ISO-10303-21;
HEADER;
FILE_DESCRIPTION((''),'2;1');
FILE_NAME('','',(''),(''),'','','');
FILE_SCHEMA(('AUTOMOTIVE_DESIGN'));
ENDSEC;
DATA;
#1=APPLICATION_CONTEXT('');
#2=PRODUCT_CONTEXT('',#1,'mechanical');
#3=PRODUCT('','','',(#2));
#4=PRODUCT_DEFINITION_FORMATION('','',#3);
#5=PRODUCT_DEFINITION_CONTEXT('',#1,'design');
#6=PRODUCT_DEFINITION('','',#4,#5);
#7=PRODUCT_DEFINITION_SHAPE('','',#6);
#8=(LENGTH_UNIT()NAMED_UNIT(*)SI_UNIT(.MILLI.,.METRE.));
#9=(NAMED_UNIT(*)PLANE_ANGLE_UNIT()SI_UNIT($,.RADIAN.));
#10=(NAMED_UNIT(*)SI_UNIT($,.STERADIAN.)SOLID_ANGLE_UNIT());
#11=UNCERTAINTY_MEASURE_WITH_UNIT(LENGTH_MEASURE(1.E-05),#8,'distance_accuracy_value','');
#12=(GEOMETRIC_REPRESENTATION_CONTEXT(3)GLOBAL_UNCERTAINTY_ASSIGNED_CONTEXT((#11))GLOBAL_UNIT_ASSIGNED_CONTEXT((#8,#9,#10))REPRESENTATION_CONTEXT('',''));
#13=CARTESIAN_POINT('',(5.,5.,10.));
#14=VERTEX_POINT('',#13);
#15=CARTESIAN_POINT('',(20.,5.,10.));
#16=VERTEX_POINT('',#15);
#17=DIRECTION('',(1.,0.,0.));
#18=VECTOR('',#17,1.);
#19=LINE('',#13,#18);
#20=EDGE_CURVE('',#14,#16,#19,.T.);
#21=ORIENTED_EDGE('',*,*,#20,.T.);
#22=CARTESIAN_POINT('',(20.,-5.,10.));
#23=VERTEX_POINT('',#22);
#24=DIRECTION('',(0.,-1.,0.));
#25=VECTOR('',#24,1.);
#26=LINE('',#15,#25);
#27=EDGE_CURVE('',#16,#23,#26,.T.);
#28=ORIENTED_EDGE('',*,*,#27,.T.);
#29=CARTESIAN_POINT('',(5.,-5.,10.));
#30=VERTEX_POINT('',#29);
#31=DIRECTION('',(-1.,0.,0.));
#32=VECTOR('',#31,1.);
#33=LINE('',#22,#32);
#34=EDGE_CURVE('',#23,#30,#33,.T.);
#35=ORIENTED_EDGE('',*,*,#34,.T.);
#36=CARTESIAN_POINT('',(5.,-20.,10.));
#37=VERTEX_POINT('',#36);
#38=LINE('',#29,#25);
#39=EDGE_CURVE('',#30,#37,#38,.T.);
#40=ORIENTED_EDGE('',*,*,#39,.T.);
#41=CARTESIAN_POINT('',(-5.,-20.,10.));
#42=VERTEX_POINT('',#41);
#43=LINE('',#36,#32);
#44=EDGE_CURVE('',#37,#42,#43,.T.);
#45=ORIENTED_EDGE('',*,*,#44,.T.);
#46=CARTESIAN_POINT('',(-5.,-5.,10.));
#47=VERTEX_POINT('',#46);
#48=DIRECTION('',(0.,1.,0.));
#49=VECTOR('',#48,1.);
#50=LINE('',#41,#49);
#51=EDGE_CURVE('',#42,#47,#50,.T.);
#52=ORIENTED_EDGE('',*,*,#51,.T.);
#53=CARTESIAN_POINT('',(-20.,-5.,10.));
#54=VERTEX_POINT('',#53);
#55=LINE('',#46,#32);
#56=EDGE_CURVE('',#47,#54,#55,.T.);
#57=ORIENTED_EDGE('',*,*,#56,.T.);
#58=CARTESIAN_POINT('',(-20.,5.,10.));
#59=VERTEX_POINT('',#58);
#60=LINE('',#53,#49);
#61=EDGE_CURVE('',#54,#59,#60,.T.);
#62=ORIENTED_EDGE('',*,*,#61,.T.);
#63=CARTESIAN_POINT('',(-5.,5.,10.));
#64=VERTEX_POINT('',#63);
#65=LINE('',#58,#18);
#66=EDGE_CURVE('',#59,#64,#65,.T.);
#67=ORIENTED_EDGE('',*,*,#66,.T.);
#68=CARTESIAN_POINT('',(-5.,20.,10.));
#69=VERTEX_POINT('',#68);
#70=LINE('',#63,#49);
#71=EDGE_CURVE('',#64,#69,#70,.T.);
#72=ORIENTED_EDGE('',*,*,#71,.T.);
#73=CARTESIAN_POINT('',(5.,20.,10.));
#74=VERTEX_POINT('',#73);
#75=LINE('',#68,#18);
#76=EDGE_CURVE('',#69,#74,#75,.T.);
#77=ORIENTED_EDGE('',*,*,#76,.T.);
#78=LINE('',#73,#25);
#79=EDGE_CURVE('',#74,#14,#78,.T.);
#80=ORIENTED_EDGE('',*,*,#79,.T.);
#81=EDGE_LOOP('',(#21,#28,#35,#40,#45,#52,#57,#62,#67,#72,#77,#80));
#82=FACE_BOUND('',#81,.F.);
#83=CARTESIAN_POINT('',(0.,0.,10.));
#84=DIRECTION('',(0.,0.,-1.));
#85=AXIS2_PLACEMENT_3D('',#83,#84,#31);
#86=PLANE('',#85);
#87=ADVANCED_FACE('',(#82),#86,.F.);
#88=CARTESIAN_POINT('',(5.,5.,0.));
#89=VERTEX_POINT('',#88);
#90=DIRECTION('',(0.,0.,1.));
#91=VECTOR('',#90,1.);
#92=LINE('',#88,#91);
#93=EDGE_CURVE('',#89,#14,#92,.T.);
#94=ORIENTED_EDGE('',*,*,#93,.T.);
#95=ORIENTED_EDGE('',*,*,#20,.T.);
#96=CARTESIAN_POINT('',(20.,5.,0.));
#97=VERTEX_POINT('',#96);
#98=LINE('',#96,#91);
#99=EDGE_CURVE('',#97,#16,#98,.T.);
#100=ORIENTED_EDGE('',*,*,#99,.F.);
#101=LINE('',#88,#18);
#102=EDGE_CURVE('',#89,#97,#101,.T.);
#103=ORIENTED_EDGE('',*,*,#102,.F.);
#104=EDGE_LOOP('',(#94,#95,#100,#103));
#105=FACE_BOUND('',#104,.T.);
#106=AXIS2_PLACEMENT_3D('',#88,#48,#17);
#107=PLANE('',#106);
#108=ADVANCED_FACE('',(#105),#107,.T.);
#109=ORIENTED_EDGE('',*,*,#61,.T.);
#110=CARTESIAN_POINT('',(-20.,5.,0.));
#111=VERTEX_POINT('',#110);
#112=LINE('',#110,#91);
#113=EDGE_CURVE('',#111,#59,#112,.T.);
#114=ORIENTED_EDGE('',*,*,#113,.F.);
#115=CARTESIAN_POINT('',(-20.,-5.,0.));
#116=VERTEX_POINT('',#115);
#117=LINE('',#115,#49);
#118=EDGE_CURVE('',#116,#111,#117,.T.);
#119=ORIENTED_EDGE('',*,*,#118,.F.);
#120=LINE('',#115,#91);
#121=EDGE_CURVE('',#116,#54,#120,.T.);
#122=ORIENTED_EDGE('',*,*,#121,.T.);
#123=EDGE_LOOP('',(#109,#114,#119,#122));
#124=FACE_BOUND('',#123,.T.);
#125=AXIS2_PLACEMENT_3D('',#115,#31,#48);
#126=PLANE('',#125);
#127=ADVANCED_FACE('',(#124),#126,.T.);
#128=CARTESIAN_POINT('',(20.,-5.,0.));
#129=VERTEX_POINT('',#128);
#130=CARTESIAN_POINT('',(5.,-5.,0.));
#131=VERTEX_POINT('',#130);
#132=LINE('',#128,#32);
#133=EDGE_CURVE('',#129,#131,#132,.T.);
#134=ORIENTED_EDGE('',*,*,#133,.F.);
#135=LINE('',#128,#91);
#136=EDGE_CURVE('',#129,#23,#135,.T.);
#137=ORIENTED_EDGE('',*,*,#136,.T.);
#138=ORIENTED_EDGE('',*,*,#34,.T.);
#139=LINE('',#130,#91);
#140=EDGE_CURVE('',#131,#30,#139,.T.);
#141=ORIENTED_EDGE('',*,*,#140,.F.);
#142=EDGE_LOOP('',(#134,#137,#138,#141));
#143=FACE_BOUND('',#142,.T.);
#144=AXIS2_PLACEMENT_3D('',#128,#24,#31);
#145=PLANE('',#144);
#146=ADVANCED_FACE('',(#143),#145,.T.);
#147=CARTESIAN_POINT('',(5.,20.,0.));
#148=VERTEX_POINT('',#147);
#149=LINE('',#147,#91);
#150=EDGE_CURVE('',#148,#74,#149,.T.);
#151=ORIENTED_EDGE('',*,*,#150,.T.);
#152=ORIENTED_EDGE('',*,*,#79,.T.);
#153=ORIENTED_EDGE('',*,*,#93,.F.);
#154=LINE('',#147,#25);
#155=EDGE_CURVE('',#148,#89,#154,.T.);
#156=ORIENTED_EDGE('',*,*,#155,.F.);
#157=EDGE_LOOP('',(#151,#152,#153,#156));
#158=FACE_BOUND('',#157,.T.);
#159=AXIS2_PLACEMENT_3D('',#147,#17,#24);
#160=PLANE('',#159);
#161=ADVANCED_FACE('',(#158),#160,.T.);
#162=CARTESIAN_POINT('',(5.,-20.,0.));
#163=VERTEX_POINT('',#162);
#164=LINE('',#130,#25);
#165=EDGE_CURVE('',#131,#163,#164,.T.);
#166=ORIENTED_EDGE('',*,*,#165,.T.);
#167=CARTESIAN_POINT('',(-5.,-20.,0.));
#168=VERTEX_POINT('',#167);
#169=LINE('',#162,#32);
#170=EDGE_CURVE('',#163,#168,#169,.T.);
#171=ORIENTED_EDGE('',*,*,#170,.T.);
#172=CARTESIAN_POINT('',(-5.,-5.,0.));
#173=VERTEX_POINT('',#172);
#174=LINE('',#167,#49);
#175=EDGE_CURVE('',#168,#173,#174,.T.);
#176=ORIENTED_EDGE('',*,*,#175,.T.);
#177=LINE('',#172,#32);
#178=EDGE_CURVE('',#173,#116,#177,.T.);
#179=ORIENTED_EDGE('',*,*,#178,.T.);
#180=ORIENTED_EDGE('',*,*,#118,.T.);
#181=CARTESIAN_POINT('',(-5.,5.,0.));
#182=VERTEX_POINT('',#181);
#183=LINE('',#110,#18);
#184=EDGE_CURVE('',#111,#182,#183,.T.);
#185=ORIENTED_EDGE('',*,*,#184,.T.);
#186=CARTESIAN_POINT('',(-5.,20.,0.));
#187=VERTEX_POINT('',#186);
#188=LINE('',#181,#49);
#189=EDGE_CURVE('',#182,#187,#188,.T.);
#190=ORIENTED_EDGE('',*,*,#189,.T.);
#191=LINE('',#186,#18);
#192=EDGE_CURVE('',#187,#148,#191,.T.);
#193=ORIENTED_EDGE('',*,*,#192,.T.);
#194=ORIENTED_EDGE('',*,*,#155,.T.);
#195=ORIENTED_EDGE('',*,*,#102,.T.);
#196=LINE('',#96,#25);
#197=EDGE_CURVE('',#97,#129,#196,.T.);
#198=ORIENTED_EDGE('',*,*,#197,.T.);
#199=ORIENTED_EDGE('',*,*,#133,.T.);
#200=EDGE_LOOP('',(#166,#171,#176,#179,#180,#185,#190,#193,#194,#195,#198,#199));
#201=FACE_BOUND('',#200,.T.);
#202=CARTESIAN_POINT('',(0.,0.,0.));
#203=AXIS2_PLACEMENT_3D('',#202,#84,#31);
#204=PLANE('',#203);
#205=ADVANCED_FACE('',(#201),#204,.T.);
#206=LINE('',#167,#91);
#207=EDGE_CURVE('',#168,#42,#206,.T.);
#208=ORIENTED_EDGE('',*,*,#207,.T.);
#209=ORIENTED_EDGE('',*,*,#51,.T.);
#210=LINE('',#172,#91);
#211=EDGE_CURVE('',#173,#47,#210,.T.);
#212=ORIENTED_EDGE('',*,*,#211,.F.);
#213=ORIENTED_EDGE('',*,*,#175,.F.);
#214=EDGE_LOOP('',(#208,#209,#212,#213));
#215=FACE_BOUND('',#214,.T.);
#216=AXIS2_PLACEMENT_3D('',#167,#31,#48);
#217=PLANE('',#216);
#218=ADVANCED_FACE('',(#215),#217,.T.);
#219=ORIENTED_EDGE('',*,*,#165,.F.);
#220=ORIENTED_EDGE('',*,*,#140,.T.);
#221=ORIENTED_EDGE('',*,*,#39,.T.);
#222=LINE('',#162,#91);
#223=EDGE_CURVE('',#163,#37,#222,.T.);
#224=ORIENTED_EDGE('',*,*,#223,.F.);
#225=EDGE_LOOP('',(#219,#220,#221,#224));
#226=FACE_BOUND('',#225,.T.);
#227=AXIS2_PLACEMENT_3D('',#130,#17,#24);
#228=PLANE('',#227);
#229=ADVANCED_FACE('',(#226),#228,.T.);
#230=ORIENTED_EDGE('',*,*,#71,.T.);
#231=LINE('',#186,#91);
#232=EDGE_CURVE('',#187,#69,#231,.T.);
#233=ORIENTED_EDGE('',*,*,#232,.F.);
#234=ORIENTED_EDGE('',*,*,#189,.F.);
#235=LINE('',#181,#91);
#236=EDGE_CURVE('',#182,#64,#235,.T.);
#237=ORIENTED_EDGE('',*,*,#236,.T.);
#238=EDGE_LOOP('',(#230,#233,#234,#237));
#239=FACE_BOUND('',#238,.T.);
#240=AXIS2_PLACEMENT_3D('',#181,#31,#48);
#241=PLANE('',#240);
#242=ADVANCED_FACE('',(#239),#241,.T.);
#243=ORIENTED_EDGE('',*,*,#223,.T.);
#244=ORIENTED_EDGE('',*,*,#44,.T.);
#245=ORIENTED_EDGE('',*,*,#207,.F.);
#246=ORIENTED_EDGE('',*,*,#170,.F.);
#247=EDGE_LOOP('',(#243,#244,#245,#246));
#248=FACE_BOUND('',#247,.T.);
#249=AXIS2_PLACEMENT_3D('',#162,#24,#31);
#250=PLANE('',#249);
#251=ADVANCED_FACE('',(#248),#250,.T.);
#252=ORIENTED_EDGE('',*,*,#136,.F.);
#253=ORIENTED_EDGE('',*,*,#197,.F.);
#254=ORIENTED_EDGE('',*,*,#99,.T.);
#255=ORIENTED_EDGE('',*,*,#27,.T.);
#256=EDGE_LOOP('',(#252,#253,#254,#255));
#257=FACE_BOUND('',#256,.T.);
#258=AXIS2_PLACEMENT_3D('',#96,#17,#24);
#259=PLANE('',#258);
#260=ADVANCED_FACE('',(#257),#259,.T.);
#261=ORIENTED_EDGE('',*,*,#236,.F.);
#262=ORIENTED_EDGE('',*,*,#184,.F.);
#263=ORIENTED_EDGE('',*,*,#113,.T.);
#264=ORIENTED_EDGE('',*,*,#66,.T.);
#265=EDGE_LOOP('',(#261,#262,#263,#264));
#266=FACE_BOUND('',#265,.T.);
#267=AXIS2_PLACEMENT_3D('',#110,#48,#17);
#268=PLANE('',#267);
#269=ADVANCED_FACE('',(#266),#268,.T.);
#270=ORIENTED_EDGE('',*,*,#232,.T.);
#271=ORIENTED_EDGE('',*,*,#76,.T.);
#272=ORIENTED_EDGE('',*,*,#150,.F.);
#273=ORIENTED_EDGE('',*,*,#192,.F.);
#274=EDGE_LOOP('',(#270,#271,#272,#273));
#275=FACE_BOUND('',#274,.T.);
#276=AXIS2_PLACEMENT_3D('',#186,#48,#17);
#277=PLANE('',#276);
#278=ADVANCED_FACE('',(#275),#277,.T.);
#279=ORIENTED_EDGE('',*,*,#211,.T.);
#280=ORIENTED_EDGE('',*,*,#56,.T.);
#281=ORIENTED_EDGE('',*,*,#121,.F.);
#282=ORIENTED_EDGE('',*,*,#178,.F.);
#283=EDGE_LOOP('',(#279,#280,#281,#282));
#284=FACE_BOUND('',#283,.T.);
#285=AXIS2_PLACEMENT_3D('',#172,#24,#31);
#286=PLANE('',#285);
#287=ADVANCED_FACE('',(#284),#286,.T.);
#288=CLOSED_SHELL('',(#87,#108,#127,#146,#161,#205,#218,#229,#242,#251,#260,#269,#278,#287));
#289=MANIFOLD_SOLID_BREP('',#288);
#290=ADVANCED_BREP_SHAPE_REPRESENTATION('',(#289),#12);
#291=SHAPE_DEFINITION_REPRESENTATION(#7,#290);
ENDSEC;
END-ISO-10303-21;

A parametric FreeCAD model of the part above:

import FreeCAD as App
import Part
import Sketcher

V = App.Vector
Q = App.Units.Quantity


def add_polygon(sketch, points):
    """Adds a closed chain of lines whose ends are joined by coincident constraints."""
    first, n = sketch.GeometryCount, len(points)
    for a, b in zip(points, points[1:] + points[:1]):
        sketch.addGeometry(Part.LineSegment(App.Vector(*a, 0), App.Vector(*b, 0)), False)
    for i in range(n):
        sketch.addConstraint(Sketcher.Constraint("Coincident", first + i, 2, first + (i + 1) % n, 1))

doc = App.newDocument("Part")
body = doc.addObject("PartDesign::Body", "Body")

# Sketch on XY plane
sketch1 = doc.addObject("Sketcher::SketchObject", "Sketch")
body.addObject(sketch1)
sketch1.AttachmentSupport = (doc.XY_Plane, [""])
sketch1.MapMode = "FlatFace"
add_polygon(sketch1, [(5, 20), (-5, 20), (-5, 5), (-20, 5), (-20, -5), (-5, -5), (-5, -20), (5, -20), (5, -5), (20, -5), (20, 5), (5, 5)])  # lines 0-11
sketch1.addConstraint([
    Sketcher.Constraint("Horizontal", 0),
    Sketcher.Constraint("Vertical", 1),
    Sketcher.Constraint("Horizontal", 2),
    Sketcher.Constraint("Vertical", 3),
    Sketcher.Constraint("Horizontal", 4),
    Sketcher.Constraint("Vertical", 5),
    Sketcher.Constraint("Horizontal", 6),
    Sketcher.Constraint("Vertical", 7),
    Sketcher.Constraint("Horizontal", 8),
    Sketcher.Constraint("Vertical", 9),
    Sketcher.Constraint("Horizontal", 10),
    Sketcher.Constraint("Vertical", 11),
    Sketcher.Constraint("Symmetric", 0, 2, 6, 2, -1, 1),
    Sketcher.Constraint("Symmetric", 2, 2, 8, 2, -1, 1),
    Sketcher.Constraint("Symmetric", 4, 2, 10, 2, -1, 1),
    Sketcher.Constraint("Symmetric", 4, 2, 7, 2, -2),
    Sketcher.Constraint("Equal", 10, 1),
    Sketcher.Constraint("Equal", 6, 3),
    Sketcher.Constraint("DistanceX", 0, 2, 0, 1, Q("10 mm")),
    Sketcher.Constraint("DistanceX", 2, 2, 2, 1, Q("15 mm")),
])
pad1 = doc.addObject("PartDesign::Pad", "Pad")
body.addObject(pad1)
pad1.Profile = sketch1
pad1.Length = 10

doc.recompute()
